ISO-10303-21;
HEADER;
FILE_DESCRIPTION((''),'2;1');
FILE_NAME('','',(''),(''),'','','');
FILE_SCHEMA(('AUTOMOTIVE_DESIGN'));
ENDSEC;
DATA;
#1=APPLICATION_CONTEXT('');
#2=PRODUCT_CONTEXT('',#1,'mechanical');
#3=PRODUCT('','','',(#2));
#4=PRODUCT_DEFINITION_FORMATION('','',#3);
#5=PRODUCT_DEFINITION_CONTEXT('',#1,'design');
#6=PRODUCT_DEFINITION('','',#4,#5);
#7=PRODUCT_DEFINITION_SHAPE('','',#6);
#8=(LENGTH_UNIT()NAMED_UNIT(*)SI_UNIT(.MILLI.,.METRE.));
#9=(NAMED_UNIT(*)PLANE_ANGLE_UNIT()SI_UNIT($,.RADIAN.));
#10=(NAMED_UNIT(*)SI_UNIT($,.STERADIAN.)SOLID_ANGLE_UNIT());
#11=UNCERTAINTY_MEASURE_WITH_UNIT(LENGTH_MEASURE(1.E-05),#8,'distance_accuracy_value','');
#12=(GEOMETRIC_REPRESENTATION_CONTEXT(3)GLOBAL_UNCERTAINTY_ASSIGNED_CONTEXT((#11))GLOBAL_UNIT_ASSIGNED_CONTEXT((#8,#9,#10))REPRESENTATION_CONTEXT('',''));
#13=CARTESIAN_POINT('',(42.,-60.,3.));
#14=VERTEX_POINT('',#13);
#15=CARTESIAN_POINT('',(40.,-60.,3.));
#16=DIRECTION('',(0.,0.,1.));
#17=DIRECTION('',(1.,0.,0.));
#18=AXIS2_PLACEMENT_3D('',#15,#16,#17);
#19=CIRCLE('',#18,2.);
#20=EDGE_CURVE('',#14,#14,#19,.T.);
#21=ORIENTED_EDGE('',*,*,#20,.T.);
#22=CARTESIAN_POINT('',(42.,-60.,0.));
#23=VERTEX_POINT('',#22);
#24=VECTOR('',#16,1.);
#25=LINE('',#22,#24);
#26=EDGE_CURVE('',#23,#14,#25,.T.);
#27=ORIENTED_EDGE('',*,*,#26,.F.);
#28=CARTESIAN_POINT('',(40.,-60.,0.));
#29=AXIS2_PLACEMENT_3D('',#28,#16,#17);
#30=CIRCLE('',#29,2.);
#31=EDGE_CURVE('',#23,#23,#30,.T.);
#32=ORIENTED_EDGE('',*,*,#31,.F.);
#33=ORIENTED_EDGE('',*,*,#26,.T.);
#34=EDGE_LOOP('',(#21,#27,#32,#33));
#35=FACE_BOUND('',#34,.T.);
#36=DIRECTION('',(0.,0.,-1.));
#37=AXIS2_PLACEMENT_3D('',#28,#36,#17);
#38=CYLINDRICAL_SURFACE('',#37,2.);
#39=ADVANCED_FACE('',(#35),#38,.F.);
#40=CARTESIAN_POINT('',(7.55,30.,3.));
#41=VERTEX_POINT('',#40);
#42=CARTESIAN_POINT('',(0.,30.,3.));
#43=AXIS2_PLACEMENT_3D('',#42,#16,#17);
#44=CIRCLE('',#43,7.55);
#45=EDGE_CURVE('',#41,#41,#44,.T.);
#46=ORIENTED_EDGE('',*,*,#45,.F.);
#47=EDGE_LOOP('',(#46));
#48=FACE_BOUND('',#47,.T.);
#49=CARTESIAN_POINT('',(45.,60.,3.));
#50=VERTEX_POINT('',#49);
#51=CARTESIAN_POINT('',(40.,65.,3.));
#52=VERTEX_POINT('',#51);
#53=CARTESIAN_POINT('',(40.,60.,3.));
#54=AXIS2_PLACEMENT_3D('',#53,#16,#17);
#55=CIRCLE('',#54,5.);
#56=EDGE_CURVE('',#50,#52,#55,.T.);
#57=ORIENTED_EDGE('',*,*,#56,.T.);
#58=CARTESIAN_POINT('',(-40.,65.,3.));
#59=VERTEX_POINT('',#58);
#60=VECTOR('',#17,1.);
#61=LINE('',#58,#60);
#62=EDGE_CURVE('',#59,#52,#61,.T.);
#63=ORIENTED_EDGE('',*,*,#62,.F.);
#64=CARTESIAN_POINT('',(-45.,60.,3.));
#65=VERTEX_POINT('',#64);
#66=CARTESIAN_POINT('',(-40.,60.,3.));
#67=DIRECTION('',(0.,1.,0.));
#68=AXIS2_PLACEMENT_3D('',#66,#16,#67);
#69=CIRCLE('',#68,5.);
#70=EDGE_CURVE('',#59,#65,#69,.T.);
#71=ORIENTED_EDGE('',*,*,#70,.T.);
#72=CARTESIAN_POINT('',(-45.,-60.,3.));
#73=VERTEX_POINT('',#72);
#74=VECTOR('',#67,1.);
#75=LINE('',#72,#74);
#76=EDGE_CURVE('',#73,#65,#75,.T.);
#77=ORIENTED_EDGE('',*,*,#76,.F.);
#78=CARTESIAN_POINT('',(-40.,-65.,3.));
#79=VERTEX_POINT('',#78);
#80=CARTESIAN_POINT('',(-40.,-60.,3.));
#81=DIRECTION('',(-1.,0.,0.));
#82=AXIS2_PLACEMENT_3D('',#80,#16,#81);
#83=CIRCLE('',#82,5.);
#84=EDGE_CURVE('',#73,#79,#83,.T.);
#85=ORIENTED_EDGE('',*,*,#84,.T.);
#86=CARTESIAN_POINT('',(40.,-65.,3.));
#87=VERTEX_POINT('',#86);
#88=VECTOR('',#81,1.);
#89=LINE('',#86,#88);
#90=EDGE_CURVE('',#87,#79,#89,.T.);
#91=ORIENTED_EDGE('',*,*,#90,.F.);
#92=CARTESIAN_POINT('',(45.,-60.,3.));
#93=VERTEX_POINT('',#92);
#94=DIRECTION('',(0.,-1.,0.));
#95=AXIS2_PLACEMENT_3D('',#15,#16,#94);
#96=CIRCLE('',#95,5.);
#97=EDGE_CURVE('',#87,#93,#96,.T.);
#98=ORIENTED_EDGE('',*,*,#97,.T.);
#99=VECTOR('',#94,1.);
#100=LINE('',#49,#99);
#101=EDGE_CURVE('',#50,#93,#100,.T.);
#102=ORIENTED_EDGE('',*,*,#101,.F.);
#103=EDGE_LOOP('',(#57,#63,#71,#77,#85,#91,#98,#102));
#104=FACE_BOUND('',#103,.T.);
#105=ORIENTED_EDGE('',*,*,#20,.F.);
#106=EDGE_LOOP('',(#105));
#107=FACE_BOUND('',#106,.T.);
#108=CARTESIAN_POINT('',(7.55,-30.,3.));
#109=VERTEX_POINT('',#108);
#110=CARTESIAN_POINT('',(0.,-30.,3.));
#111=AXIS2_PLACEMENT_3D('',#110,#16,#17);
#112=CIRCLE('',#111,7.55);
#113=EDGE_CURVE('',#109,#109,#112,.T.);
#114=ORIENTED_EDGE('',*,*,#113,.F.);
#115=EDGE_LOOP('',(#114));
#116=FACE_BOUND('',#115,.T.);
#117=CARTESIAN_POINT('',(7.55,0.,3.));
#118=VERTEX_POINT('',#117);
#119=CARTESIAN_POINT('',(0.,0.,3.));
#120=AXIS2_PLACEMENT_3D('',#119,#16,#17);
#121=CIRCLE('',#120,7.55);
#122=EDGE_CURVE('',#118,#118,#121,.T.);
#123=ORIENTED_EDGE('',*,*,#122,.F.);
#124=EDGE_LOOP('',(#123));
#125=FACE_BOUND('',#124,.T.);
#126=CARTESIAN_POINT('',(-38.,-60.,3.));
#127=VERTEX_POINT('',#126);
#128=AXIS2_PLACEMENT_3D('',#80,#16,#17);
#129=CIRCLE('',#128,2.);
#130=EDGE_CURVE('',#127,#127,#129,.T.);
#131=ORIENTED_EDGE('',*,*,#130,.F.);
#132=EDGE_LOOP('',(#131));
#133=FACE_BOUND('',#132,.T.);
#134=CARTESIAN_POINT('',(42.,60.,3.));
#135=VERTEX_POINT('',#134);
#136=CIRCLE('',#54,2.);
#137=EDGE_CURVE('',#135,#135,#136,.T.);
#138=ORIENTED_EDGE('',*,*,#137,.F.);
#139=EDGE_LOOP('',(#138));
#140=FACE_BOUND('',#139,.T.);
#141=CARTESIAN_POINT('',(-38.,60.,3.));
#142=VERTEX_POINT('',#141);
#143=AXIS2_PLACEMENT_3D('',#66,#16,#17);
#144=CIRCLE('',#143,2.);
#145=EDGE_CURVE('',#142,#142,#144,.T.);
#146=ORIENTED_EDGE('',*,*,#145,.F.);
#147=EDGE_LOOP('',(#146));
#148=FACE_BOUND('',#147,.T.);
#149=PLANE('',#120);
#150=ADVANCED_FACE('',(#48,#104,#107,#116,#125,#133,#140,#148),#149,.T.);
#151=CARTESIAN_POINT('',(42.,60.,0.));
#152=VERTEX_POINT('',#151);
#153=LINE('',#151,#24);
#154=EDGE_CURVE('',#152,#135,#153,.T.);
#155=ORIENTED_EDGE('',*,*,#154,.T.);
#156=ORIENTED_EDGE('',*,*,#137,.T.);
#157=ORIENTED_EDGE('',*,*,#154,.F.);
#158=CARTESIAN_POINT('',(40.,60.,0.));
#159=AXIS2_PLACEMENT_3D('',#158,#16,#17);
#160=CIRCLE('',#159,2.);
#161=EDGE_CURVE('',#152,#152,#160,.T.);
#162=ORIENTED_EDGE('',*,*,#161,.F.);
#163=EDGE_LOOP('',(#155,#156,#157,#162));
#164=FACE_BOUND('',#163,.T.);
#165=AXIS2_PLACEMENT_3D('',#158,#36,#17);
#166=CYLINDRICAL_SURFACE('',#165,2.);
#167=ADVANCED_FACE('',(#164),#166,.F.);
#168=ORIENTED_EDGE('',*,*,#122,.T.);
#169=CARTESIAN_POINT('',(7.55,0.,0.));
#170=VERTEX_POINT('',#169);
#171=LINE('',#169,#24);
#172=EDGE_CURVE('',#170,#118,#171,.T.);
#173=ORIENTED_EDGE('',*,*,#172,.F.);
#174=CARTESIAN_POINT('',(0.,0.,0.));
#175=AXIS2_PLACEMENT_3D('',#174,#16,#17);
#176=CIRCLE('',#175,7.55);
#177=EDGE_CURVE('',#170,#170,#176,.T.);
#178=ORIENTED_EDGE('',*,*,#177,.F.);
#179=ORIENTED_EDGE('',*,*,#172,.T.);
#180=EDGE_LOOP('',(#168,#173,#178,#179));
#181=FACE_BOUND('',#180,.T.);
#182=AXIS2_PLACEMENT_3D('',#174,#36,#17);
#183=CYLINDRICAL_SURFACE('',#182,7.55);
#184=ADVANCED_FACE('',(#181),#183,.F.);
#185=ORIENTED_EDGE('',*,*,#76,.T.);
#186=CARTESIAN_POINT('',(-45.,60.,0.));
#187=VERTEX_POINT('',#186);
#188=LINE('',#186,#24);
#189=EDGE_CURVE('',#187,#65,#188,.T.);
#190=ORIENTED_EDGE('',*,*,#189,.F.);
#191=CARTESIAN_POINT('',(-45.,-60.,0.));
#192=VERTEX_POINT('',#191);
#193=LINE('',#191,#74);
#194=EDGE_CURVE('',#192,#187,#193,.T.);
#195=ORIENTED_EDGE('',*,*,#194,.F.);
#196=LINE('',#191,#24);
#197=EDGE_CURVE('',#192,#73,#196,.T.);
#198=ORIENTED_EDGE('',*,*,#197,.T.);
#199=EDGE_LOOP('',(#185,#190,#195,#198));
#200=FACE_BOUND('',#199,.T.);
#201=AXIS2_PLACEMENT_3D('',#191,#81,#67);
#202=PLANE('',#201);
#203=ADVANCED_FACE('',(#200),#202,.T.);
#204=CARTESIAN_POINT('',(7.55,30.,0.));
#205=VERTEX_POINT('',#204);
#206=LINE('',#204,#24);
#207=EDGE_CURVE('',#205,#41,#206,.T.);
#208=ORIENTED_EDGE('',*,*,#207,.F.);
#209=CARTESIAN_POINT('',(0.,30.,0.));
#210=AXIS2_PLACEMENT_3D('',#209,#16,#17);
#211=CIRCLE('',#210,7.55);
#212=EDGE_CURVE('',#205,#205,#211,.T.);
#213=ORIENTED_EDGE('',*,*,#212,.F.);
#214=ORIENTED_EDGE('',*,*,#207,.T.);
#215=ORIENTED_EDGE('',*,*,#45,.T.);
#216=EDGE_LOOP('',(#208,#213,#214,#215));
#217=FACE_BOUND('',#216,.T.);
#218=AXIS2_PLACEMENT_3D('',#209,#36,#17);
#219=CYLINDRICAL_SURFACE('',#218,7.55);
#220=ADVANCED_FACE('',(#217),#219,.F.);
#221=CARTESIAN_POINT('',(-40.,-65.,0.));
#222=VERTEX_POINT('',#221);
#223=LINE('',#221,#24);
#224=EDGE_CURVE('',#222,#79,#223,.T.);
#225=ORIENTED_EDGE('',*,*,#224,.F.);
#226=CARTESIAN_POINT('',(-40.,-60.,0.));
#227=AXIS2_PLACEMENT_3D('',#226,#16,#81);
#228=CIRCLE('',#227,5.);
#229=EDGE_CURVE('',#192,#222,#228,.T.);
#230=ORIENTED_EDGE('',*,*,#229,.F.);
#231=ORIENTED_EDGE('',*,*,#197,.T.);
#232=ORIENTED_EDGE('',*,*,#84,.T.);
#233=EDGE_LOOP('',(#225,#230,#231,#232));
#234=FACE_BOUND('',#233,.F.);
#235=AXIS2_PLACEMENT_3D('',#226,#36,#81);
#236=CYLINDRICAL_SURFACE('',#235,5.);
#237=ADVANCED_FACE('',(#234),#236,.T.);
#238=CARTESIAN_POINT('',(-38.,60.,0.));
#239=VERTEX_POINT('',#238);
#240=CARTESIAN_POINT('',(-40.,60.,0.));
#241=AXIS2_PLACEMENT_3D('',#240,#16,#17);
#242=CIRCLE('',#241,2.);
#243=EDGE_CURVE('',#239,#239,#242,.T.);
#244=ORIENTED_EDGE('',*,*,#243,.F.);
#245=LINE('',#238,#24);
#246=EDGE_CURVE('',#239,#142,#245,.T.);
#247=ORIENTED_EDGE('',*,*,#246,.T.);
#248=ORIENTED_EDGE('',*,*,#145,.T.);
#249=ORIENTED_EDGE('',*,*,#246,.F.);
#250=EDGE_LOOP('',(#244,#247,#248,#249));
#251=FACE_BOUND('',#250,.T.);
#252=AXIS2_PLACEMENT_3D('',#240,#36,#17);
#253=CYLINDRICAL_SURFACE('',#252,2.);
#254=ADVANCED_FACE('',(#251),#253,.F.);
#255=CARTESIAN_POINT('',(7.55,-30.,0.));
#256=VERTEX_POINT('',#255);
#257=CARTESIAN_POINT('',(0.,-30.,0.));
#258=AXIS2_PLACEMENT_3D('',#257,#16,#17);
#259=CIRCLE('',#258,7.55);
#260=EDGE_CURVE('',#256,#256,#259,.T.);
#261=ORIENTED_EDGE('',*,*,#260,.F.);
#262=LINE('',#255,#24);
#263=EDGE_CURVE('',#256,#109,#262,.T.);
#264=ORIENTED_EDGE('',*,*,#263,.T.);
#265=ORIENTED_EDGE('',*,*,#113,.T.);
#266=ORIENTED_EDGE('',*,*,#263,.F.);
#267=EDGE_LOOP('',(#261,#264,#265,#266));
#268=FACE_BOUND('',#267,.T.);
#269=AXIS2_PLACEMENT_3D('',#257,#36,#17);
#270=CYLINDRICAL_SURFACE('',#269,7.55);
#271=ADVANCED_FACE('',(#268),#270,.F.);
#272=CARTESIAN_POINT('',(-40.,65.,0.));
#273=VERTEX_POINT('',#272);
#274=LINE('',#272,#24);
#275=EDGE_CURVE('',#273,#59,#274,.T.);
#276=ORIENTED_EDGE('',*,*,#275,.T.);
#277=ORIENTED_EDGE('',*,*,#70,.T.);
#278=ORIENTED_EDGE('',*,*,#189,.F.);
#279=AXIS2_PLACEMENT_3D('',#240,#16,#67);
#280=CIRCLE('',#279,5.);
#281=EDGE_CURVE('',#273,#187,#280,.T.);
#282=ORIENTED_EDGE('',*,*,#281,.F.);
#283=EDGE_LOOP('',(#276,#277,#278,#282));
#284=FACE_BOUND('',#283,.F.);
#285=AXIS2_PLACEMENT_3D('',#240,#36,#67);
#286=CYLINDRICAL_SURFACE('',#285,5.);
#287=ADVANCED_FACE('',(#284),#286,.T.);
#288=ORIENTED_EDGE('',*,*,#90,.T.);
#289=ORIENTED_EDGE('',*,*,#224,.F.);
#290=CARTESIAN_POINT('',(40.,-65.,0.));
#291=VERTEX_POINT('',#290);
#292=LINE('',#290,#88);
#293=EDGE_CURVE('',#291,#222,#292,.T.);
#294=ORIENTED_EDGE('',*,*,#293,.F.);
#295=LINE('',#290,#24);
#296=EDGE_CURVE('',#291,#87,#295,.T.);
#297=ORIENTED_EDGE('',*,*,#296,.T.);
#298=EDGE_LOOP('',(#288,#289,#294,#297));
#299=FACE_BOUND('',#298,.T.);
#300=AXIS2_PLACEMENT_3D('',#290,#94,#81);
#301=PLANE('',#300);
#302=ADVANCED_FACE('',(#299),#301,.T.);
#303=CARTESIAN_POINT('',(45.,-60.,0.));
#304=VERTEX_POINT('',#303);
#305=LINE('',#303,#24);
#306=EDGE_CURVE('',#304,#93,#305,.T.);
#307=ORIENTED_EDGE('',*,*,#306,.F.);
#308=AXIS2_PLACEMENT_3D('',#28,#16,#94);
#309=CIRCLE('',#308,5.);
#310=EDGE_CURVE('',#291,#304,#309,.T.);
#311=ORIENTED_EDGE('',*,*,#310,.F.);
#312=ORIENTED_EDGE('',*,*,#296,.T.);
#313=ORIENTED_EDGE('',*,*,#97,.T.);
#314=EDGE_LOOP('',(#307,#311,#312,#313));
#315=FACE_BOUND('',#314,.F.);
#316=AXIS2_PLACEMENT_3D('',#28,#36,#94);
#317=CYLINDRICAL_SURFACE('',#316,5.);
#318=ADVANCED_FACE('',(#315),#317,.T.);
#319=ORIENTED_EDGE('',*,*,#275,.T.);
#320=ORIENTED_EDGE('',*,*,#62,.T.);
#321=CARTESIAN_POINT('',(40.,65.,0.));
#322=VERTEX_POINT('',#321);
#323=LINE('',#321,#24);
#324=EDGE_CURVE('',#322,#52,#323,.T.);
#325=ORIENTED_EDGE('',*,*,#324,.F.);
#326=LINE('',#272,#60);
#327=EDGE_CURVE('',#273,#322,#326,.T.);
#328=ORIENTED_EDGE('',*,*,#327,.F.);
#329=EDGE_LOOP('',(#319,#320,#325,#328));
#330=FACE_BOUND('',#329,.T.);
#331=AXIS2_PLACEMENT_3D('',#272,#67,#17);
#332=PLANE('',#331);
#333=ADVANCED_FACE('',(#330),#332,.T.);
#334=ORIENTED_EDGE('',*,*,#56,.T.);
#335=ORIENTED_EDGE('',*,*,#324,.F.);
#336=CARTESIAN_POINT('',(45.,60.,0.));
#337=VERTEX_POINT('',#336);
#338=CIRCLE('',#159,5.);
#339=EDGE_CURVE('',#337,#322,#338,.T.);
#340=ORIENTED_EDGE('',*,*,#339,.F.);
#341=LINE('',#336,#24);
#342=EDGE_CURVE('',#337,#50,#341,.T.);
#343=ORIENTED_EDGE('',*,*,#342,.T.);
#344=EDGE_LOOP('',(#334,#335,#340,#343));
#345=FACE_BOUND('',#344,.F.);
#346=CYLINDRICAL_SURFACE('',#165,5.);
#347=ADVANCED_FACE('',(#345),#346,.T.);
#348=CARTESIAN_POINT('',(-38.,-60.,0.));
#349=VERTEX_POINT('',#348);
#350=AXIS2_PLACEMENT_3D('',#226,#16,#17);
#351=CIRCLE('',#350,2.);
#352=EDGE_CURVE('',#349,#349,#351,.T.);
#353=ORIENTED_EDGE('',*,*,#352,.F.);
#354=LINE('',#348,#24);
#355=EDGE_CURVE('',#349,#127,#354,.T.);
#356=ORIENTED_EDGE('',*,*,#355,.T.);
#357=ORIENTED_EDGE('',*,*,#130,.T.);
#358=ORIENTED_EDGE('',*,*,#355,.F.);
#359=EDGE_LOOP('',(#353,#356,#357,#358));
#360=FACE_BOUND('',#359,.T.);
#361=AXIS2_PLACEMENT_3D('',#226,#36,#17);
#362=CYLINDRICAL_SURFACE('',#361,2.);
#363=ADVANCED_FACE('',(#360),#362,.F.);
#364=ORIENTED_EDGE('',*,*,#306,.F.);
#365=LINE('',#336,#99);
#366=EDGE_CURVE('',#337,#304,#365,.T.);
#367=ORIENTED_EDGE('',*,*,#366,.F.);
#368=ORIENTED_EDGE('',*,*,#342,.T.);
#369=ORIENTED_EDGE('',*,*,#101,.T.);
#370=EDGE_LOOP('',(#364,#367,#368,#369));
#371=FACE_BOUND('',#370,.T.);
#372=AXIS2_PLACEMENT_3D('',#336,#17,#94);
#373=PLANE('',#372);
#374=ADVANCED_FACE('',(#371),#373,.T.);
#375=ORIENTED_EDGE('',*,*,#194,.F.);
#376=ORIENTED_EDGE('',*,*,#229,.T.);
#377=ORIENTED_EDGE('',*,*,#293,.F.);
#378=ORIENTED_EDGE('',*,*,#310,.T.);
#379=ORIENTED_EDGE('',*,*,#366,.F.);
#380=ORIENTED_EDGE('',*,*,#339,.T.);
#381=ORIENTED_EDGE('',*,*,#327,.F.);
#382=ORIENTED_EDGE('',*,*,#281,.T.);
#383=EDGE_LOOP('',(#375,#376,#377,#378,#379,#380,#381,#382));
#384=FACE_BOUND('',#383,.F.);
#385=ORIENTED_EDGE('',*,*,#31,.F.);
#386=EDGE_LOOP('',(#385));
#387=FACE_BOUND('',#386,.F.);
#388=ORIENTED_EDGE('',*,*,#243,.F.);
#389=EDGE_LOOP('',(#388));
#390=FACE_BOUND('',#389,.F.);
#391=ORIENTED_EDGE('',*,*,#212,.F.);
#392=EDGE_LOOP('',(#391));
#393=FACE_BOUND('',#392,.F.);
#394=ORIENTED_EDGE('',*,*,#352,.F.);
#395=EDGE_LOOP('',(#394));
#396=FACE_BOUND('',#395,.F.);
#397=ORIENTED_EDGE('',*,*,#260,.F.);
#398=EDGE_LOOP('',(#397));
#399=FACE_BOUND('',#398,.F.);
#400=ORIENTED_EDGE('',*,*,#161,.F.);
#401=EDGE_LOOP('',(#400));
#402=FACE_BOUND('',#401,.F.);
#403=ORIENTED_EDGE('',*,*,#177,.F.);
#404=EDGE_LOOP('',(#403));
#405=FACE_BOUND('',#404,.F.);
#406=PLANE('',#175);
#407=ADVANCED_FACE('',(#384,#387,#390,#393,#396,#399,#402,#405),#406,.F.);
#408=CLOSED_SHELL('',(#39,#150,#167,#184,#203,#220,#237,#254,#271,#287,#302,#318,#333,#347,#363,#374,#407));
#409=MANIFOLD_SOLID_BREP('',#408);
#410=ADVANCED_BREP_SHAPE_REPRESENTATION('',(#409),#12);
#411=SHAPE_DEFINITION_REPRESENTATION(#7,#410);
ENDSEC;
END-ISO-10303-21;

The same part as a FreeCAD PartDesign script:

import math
import FreeCAD as App
import Part
import Sketcher
from FreeCAD import Vector
Q = App.Units.Quantity

doc = App.newDocument("Part")
body = doc.addObject("PartDesign::Body", "Body")

sketch1 = body.newObject("Sketcher::SketchObject", "Sketch")
sketch1.AttachmentSupport = (doc.getObject("XY_Plane"), [""])
sketch1.MapMode = "FlatFace"
sketch1.addGeometry(Part.LineSegment(Vector(-40, -65, 0), Vector(40, -65, 0)), False)
sketch1.addGeometry(Part.ArcOfCircle(Part.Circle(Vector(40, -60, 0), Vector(0, 0, 1), 5), math.radians(-90), math.radians(0)), False)
sketch1.addGeometry(Part.LineSegment(Vector(45, -60, 0), Vector(45, 60, 0)), False)
sketch1.addGeometry(Part.ArcOfCircle(Part.Circle(Vector(40, 60, 0), Vector(0, 0, 1), 5), math.radians(0), math.radians(90)), False)
sketch1.addGeometry(Part.LineSegment(Vector(40, 65, 0), Vector(-40, 65, 0)), False)
sketch1.addGeometry(Part.ArcOfCircle(Part.Circle(Vector(-40, 60, 0), Vector(0, 0, 1), 5), math.radians(90), math.radians(180)), False)
sketch1.addGeometry(Part.LineSegment(Vector(-45, 60, 0), Vector(-45, -60, 0)), False)
sketch1.addGeometry(Part.ArcOfCircle(Part.Circle(Vector(-40, -60, 0), Vector(0, 0, 1), 5), math.radians(180), math.radians(270)), False)
sketch1.addGeometry(Part.Circle(Vector(-40, -60, 0), Vector(0, 0, 1), 2), False)
sketch1.addGeometry(Part.Circle(Vector(40, -60, 0), Vector(0, 0, 1), 2), False)
sketch1.addGeometry(Part.Circle(Vector(0, -30, 0), Vector(0, 0, 1), 7.5), False)
sketch1.addGeometry(Part.Circle(Vector(-40, 60, 0), Vector(0, 0, 1), 2), False)
sketch1.addGeometry(Part.Circle(Vector(0, 0, 0), Vector(0, 0, 1), 7.5), False)
sketch1.addGeometry(Part.Circle(Vector(0, 30, 0), Vector(0, 0, 1), 7.5), False)
sketch1.addGeometry(Part.Circle(Vector(40, 60, 0), Vector(0, 0, 1), 2), False)
sketch1.addConstraint(Sketcher.Constraint("Tangent", 0, 2, 1, 1))
sketch1.addConstraint(Sketcher.Constraint("Tangent", 1, 2, 2, 1))
sketch1.addConstraint(Sketcher.Constraint("Tangent", 2, 2, 3, 1))
sketch1.addConstraint(Sketcher.Constraint("Tangent", 3, 2, 4, 1))
sketch1.addConstraint(Sketcher.Constraint("Tangent", 4, 2, 5, 1))
sketch1.addConstraint(Sketcher.Constraint("Tangent", 5, 2, 6, 1))
sketch1.addConstraint(Sketcher.Constraint("Tangent", 6, 2, 7, 1))
sketch1.addConstraint(Sketcher.Constraint("Tangent", 7, 2, 0, 1))
sketch1.addConstraint(Sketcher.Constraint("Horizontal", 0))
sketch1.addConstraint(Sketcher.Constraint("Vertical", 2))
sketch1.addConstraint(Sketcher.Constraint("Horizontal", 4))
sketch1.addConstraint(Sketcher.Constraint("Vertical", 6))
sketch1.addConstraint(Sketcher.Constraint("Coincident", 12, 3, -1, 1))
sketch1.addConstraint(Sketcher.Constraint("Coincident", 8, 3, 7, 3))
sketch1.addConstraint(Sketcher.Constraint("Coincident", 9, 3, 1, 3))
sketch1.addConstraint(Sketcher.Constraint("Coincident", 11, 3, 5, 3))
sketch1.addConstraint(Sketcher.Constraint("Coincident", 14, 3, 3, 3))
sketch1.addConstraint(Sketcher.Constraint("Equal", 1, 3))
sketch1.addConstraint(Sketcher.Constraint("Equal", 3, 5))
sketch1.addConstraint(Sketcher.Constraint("Equal", 5, 7))
sketch1.addConstraint(Sketcher.Constraint("Equal", 8, 9))
sketch1.addConstraint(Sketcher.Constraint("Equal", 9, 11))
sketch1.addConstraint(Sketcher.Constraint("Equal", 10, 12))
sketch1.addConstraint(Sketcher.Constraint("Equal", 12, 13))
sketch1.addConstraint(Sketcher.Constraint("Equal", 11, 14))
sketch1.addConstraint(Sketcher.Constraint("Symmetric", 1, 3, 5, 3, -1, 1))
sketch1.addConstraint(Sketcher.Constraint("Symmetric", 10, 3, 13, 3, -1, 1))
sketch1.addConstraint(Sketcher.Constraint("PointOnObject", 10, 3, -2))
sketch1.addConstraint(Sketcher.Constraint("Diameter", 8, Q("4 mm")))
sketch1.addConstraint(Sketcher.Constraint("Radius", 1, Q("5 mm")))
sketch1.addConstraint(Sketcher.Constraint("Diameter", 10, Q("15.1 mm")))
sketch1.addConstraint(Sketcher.Constraint("DistanceY", 10, 3, -1, 1, Q("30 mm")))
sketch1.addConstraint(Sketcher.Constraint("DistanceX", -1, 1, 1, 2, Q("45 mm")))
sketch1.addConstraint(Sketcher.Constraint("DistanceY", 1, 3, 10, 3, Q("30 mm")))
pad1 = body.newObject("PartDesign::Pad", "Pad")
pad1.Profile = sketch1
pad1.Length = 3

doc.recompute()
